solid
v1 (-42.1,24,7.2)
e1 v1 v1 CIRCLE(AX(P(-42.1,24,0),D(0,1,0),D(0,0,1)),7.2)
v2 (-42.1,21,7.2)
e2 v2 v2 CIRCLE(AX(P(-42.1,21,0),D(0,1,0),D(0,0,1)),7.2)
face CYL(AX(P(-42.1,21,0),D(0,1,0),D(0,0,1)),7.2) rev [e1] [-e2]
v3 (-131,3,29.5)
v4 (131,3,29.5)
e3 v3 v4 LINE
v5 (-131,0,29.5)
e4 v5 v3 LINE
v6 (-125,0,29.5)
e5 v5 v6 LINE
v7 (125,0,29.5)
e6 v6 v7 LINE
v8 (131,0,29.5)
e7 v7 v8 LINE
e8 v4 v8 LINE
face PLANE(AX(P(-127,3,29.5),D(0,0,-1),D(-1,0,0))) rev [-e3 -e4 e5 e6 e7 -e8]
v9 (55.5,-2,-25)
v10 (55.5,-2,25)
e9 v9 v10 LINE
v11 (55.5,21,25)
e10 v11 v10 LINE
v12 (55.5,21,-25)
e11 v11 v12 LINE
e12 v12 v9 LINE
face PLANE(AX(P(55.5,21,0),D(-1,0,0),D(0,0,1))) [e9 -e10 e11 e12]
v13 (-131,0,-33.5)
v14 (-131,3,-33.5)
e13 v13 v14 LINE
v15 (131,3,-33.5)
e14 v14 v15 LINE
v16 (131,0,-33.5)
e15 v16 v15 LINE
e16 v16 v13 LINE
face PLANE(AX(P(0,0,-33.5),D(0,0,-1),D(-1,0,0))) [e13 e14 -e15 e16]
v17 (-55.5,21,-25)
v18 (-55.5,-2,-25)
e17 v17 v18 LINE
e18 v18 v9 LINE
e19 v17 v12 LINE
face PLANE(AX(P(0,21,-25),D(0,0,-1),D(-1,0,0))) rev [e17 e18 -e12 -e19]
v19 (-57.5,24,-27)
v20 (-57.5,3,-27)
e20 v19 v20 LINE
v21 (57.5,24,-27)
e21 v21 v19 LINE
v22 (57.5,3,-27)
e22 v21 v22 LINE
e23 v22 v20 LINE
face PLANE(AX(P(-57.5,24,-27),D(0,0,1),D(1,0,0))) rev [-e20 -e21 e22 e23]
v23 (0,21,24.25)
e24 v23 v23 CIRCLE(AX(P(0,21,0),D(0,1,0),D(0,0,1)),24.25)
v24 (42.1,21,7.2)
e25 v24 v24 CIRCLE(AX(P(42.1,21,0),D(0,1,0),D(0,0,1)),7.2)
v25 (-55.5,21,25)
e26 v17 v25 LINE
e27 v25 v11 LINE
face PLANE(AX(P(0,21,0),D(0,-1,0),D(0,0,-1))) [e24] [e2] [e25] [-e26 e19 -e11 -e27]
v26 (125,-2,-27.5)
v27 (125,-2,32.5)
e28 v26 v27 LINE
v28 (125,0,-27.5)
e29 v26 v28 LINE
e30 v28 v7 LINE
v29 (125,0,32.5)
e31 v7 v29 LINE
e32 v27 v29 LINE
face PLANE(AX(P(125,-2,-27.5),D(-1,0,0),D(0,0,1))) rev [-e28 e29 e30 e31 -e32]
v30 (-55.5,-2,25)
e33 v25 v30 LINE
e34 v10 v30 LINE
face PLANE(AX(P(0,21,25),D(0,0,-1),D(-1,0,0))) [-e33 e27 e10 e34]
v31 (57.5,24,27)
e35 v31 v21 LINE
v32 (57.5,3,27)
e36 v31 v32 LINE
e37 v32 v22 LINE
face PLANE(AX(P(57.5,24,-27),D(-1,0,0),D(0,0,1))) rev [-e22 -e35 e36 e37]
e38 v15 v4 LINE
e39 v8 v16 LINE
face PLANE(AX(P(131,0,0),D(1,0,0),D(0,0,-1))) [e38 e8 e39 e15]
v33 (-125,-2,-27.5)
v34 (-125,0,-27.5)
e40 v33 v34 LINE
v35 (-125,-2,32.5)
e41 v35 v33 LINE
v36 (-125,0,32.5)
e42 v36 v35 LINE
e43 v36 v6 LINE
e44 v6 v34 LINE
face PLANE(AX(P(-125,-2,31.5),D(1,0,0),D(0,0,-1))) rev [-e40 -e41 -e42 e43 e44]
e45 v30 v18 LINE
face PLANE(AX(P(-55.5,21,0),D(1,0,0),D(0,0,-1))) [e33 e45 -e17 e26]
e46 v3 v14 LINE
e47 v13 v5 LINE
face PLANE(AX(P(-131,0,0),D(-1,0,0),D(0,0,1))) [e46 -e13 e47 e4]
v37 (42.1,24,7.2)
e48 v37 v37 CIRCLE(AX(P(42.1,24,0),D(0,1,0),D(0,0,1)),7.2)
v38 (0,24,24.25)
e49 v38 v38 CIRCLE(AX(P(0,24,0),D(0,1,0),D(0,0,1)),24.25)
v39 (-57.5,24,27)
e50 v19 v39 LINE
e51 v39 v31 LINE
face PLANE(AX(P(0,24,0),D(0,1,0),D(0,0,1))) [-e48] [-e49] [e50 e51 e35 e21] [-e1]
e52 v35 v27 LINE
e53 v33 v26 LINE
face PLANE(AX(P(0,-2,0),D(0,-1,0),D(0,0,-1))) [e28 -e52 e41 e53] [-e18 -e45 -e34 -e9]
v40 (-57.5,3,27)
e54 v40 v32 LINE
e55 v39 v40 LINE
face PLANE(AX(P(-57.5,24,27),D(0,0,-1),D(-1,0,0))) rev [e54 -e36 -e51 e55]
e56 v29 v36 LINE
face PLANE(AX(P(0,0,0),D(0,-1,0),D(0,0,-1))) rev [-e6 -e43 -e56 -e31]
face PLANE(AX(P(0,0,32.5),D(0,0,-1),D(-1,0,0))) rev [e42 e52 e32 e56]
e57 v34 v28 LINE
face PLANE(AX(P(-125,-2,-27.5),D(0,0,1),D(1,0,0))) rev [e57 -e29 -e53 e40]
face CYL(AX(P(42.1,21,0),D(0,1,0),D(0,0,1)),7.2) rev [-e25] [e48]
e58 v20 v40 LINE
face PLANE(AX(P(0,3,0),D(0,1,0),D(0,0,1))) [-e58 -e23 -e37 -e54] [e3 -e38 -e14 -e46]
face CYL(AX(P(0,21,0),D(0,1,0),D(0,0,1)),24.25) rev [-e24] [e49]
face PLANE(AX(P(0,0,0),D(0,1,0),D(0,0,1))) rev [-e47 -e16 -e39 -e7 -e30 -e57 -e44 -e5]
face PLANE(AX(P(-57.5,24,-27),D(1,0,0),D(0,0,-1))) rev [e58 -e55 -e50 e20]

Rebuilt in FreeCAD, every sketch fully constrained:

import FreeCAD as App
import Part
import Sketcher
from FreeCAD import Vector
Q = App.Units.Quantity

doc = App.newDocument("Part")
body = doc.addObject("PartDesign::Body", "Body")

sketch1 = doc.addObject("Sketcher::SketchObject", "Sketch")
body.addObject(sketch1)
sketch1.AttachmentSupport = (doc.XZ_Plane, [""])
sketch1.MapMode = "FlatFace"
sketch1.addGeometry(Part.LineSegment(Vector(-127, -30, 0), Vector(-127, 30, 0)), False)
sketch1.addGeometry(Part.LineSegment(Vector(-127, 30, 0), Vector(127, 30, 0)), False)
sketch1.addGeometry(Part.LineSegment(Vector(127, 30, 0), Vector(127, -30, 0)), False)
sketch1.addGeometry(Part.LineSegment(Vector(127, -30, 0), Vector(-127, -30, 0)), False)
sketch1.addConstraint(Sketcher.Constraint("Coincident", 0, 2, 1, 1))
sketch1.addConstraint(Sketcher.Constraint("Coincident", 1, 2, 2, 1))
sketch1.addConstraint(Sketcher.Constraint("Coincident", 2, 2, 3, 1))
sketch1.addConstraint(Sketcher.Constraint("Coincident", 3, 2, 0, 1))
sketch1.addConstraint(Sketcher.Constraint("Vertical", 0))
sketch1.addConstraint(Sketcher.Constraint("Horizontal", 1))
sketch1.addConstraint(Sketcher.Constraint("Vertical", 2))
sketch1.addConstraint(Sketcher.Constraint("Horizontal", 3))
sketch1.addConstraint(Sketcher.Constraint("Symmetric", 0, 2, 2, 2, -1, 1))
sketch1.addConstraint(Sketcher.Constraint("DistanceX", 1, 1, 1, 2, Q("254 mm")))
sketch1.addConstraint(Sketcher.Constraint("DistanceY", 0, 1, 0, 2, Q("59 mm")))
pad1 = doc.addObject("PartDesign::Pad", "Pad")
body.addObject(pad1)
pad1.Profile = sketch1
pad1.Length = 3
pad1.Reversed = True

sketch2 = doc.addObject("Sketcher::SketchObject", "Sketch001")
body.addObject(sketch2)
sketch2.AttachmentSupport = (doc.XZ_Plane, [""])
sketch2.MapMode = "FlatFace"
sketch2.AttachmentOffset = App.Placement(Vector(0, 0, -3), App.Rotation())
sketch2.addGeometry(Part.LineSegment(Vector(-58, -27, 0), Vector(-58, 27, 0)), False)
sketch2.addGeometry(Part.LineSegment(Vector(-58, 27, 0), Vector(58, 27, 0)), False)
sketch2.addGeometry(Part.LineSegment(Vector(58, 27, 0), Vector(58, -27, 0)), False)
sketch2.addGeometry(Part.LineSegment(Vector(58, -27, 0), Vector(-58, -27, 0)), False)
sketch2.addConstraint(Sketcher.Constraint("Coincident", 0, 2, 1, 1))
sketch2.addConstraint(Sketcher.Constraint("Coincident", 1, 2, 2, 1))
sketch2.addConstraint(Sketcher.Constraint("Coincident", 2, 2, 3, 1))
sketch2.addConstraint(Sketcher.Constraint("Coincident", 3, 2, 0, 1))
sketch2.addConstraint(Sketcher.Constraint("Vertical", 0))
sketch2.addConstraint(Sketcher.Constraint("Horizontal", 1))
sketch2.addConstraint(Sketcher.Constraint("Vertical", 2))
sketch2.addConstraint(Sketcher.Constraint("Horizontal", 3))
sketch2.addConstraint(Sketcher.Constraint("Symmetric", 0, 2, 2, 2, -1, 1))
sketch2.addConstraint(Sketcher.Constraint("DistanceX", 1, 1, 1, 2, Q("115 mm")))
sketch2.addConstraint(Sketcher.Constraint("DistanceY", 0, 1, 0, 2, Q("54 mm")))
pad2 = doc.addObject("PartDesign::Pad", "Pad001")
body.addObject(pad2)
pad2.Profile = sketch2
pad2.Length = 21
pad2.Reversed = True

sketch3 = doc.addObject("Sketcher::SketchObject", "Sketch002")
body.addObject(sketch3)
sketch3.AttachmentSupport = (doc.XZ_Plane, [""])
sketch3.MapMode = "FlatFace"
sketch3.addGeometry(Part.LineSegment(Vector(-56, 25, 0), Vector(-56, -25, 0)), False)
sketch3.addGeometry(Part.LineSegment(Vector(-56, -25, 0), Vector(56, -25, 0)), False)
sketch3.addGeometry(Part.LineSegment(Vector(56, -25, 0), Vector(56, 25, 0)), False)
sketch3.addGeometry(Part.LineSegment(Vector(56, 25, 0), Vector(-56, 25, 0)), False)
sketch3.addConstraint(Sketcher.Constraint("Coincident", 0, 2, 1, 1))
sketch3.addConstraint(Sketcher.Constraint("Coincident", 1, 2, 2, 1))
sketch3.addConstraint(Sketcher.Constraint("Coincident", 2, 2, 3, 1))
sketch3.addConstraint(Sketcher.Constraint("Coincident", 3, 2, 0, 1))
sketch3.addConstraint(Sketcher.Constraint("Vertical", 0))
sketch3.addConstraint(Sketcher.Constraint("Horizontal", 1))
sketch3.addConstraint(Sketcher.Constraint("Vertical", 2))
sketch3.addConstraint(Sketcher.Constraint("Horizontal", 3))
sketch3.addConstraint(Sketcher.Constraint("Symmetric", 0, 2, 2, 2, -1, 1))
sketch3.addConstraint(Sketcher.Constraint("DistanceX", 1, 1, 1, 2, Q("111 mm")))
sketch3.addConstraint(Sketcher.Constraint("DistanceY", 0, 2, 0, 1, Q("50 mm")))
pocket1 = doc.addObject("PartDesign::Pocket", "Pocket")
body.addObject(pocket1)
pocket1.Profile = sketch3
pocket1.Length = 21

sketch4 = doc.addObject("Sketcher::SketchObject", "Sketch003")
body.addObject(sketch4)
sketch4.AttachmentSupport = (doc.XZ_Plane, [""])
sketch4.MapMode = "FlatFace"
sketch4.AttachmentOffset = App.Placement(Vector(0, 0, -24), App.Rotation())
sketch4.addGeometry(Part.Circle(Vector(-42, 0, 0), Vector(0, 0, 1), 7), False)
sketch4.addGeometry(Part.Circle(Vector(0, 0, 0), Vector(0, 0, 1), 24), False)
sketch4.addGeometry(Part.Circle(Vector(42, 0, 0), Vector(0, 0, 1), 7), False)
sketch4.addConstraint(Sketcher.Constraint("Coincident", 1, 3, -1, 1))
sketch4.addConstraint(Sketcher.Constraint("Equal", 0, 2))
sketch4.addConstraint(Sketcher.Constraint("Symmetric", 0, 3, 2, 3, -1, 1))
sketch4.addConstraint(Sketcher.Constraint("PointOnObject", 0, 3, -1))
sketch4.addConstraint(Sketcher.Constraint("Diameter", 0, Q("14.4 mm")))
sketch4.addConstraint(Sketcher.Constraint("Diameter", 1, Q("48.5 mm")))
sketch4.addConstraint(Sketcher.Constraint("DistanceX", 0, 3, -1, 1, Q("42.1 mm")))
pocket2 = doc.addObject("PartDesign::Pocket", "Pocket001")
body.addObject(pocket2)
pocket2.Profile = sketch4
pocket2.Length = 3
pocket2.Reversed = True

sketch5 = doc.addObject("Sketcher::SketchObject", "Sketch004")
body.addObject(sketch5)
sketch5.AttachmentSupport = (doc.XZ_Plane, [""])
sketch5.MapMode = "FlatFace"
sketch5.addGeometry(Part.LineSegment(Vector(-125, 32, 0), Vector(-125, -28, 0)), False)
sketch5.addGeometry(Part.LineSegment(Vector(-125, -28, 0), Vector(125, -28, 0)), False)
sketch5.addGeometry(Part.LineSegment(Vector(125, -28, 0), Vector(125, 32, 0)), False)
sketch5.addGeometry(Part.LineSegment(Vector(125, 32, 0), Vector(-125, 32, 0)), False)
sketch5.addGeometry(Part.LineSegment(Vector(56, -25, 0), Vector(-56, -25, 0)), False)
sketch5.addGeometry(Part.LineSegment(Vector(-56, -25, 0), Vector(-56, 25, 0)), False)
sketch5.addGeometry(Part.LineSegment(Vector(-56, 25, 0), Vector(56, 25, 0)), False)
sketch5.addGeometry(Part.LineSegment(Vector(56, 25, 0), Vector(56, -25, 0)), False)
sketch5.addConstraint(Sketcher.Constraint("Coincident", 0, 2, 1, 1))
sketch5.addConstraint(Sketcher.Constraint("Coincident", 1, 2, 2, 1))
sketch5.addConstraint(Sketcher.Constraint("Coincident", 2, 2, 3, 1))
sketch5.addConstraint(Sketcher.Constraint("Coincident", 3, 2, 0, 1))
sketch5.addConstraint(Sketcher.Constraint("Coincident", 4, 2, 5, 1))
sketch5.addConstraint(Sketcher.Constraint("Coincident", 5, 2, 6, 1))
sketch5.addConstraint(Sketcher.Constraint("Coincident", 6, 2, 7, 1))
sketch5.addConstraint(Sketcher.Constraint("Coincident", 7, 2, 4, 1))
sketch5.addConstraint(Sketcher.Constraint("Vertical", 0))
sketch5.addConstraint(Sketcher.Constraint("Horizontal", 1))
sketch5.addConstraint(Sketcher.Constraint("Vertical", 2))
sketch5.addConstraint(Sketcher.Constraint("Horizontal", 3))
sketch5.addConstraint(Sketcher.Constraint("Horizontal", 4))
sketch5.addConstraint(Sketcher.Constraint("Vertical", 5))
sketch5.addConstraint(Sketcher.Constraint("Horizontal", 6))
sketch5.addConstraint(Sketcher.Constraint("Vertical", 7))
sketch5.addConstraint(Sketcher.Constraint("Symmetric", 4, 2, 6, 2, -1, 1))
sketch5.addConstraint(Sketcher.Constraint("DistanceX", 1, 1, 1, 2, Q("250 mm")))
sketch5.addConstraint(Sketcher.Constraint("DistanceX", 4, 2, 4, 1, Q("111 mm")))
sketch5.addConstraint(Sketcher.Constraint("DistanceY", 0, 2, 0, 1, Q("59 mm")))
sketch5.addConstraint(Sketcher.Constraint("DistanceY", 5, 1, 5, 2, Q("50 mm")))
sketch5.addConstraint(Sketcher.Constraint("DistanceX", 0, 2, -1, 1, Q("125 mm")))
sketch5.addConstraint(Sketcher.Constraint("DistanceY", 0, 2, -1, 1, Q("27.5 mm")))
pad3 = doc.addObject("PartDesign::Pad", "Pad002")
body.addObject(pad3)
pad3.Profile = sketch5
pad3.Length = 2

sketch6 = doc.addObject("Sketcher::SketchObject", "Sketch005")
body.addObject(sketch6)
sketch6.AttachmentSupport = (doc.YZ_Plane, [""])
sketch6.MapMode = "FlatFace"
sketch6.AttachmentOffset = App.Placement(Vector(0, 0, -127), App.Rotation())
sketch6.addGeometry(Part.LineSegment(Vector(3, -29.5, 0), Vector(0, -29.5, 0)), False)
sketch6.addGeometry(Part.LineSegment(Vector(0, -29.5, 0), Vector(0, 29.5, 0)), False)
sketch6.addGeometry(Part.LineSegment(Vector(0, 29.5, 0), Vector(3, 29.5, 0)), False)
sketch6.addGeometry(Part.LineSegment(Vector(3, 29.5, 0), Vector(3, -29.5, 0)), False)
sketch6.addConstraint(Sketcher.Constraint("Coincident", 0, 2, 1, 1))
sketch6.addConstraint(Sketcher.Constraint("Coincident", 1, 2, 2, 1))
sketch6.addConstraint(Sketcher.Constraint("Coincident", 2, 2, 3, 1))
sketch6.addConstraint(Sketcher.Constraint("Coincident", 3, 2, 0, 1))
sketch6.addConstraint(Sketcher.Constraint("Horizontal", 0))
sketch6.addConstraint(Sketcher.Constraint("Vertical", 1))
sketch6.addConstraint(Sketcher.Constraint("Horizontal", 2))
sketch6.addConstraint(Sketcher.Constraint("Vertical", 3))
sketch6.addConstraint(Sketcher.Constraint("Symmetric", 0, 2, 1, 2, -1, 1))
sketch6.addConstraint(Sketcher.Constraint("DistanceX", 0, 2, 0, 1, Q("3 mm")))
sketch6.addConstraint(Sketcher.Constraint("DistanceY", 1, 1, 1, 2, Q("59 mm")))
pad4 = doc.addObject("PartDesign::Pad", "Pad003")
body.addObject(pad4)
pad4.Profile = sketch6
pad4.Length = 4
pad4.Reversed = True

sketch7 = doc.addObject("Sketcher::SketchObject", "Sketch006")
body.addObject(sketch7)
sketch7.AttachmentSupport = (doc.XY_Plane, [""])
sketch7.MapMode = "FlatFace"
sketch7.AttachmentOffset = App.Placement(Vector(0, 0, -29.5), App.Rotation())
sketch7.addGeometry(Part.LineSegment(Vector(127, 3, 0), Vector(127, 0, 0)), False)
sketch7.addGeometry(Part.LineSegment(Vector(127, 0, 0), Vector(-131, 0, 0)), False)
sketch7.addGeometry(Part.LineSegment(Vector(-131, 0, 0), Vector(-131, 3, 0)), False)
sketch7.addGeometry(Part.LineSegment(Vector(-131, 3, 0), Vector(127, 3, 0)), False)
sketch7.addConstraint(Sketcher.Constraint("Coincident", 0, 2, 1, 1))
sketch7.addConstraint(Sketcher.Constraint("Coincident", 1, 2, 2, 1))
sketch7.addConstraint(Sketcher.Constraint("Coincident", 2, 2, 3, 1))
sketch7.addConstraint(Sketcher.Constraint("Coincident", 3, 2, 0, 1))
sketch7.addConstraint(Sketcher.Constraint("Vertical", 0))
sketch7.addConstraint(Sketcher.Constraint("Horizontal", 1))
sketch7.addConstraint(Sketcher.Constraint("Vertical", 2))
sketch7.addConstraint(Sketcher.Constraint("Horizontal", 3))
sketch7.addConstraint(Sketcher.Constraint("PointOnObject", 0, 2, -1))
sketch7.addConstraint(Sketcher.Constraint("DistanceX", 1, 2, 1, 1, Q("258 mm")))
sketch7.addConstraint(Sketcher.Constraint("DistanceY", 0, 2, 0, 1, Q("3 mm")))
sketch7.addConstraint(Sketcher.Constraint("DistanceX", -1, 1, 0, 2, Q("127 mm")))
pad5 = doc.addObject("PartDesign::Pad", "Pad004")
body.addObject(pad5)
pad5.Profile = sketch7
pad5.Length = 4
pad5.Reversed = True

sketch8 = doc.addObject("Sketcher::SketchObject", "Sketch007")
body.addObject(sketch8)
sketch8.AttachmentSupport = (doc.YZ_Plane, [""])
sketch8.MapMode = "FlatFace"
sketch8.AttachmentOffset = App.Placement(Vector(0, 0, 127), App.Rotation())
sketch8.addGeometry(Part.LineSegment(Vector(3, 29.5, 0), Vector(0, 29.5, 0)), False)
sketch8.addGeometry(Part.LineSegment(Vector(0, 29.5, 0), Vector(0, -33.5, 0)), False)
sketch8.addGeometry(Part.LineSegment(Vector(0, -33.5, 0), Vector(3, -33.5, 0)), False)
sketch8.addGeometry(Part.LineSegment(Vector(3, -33.5, 0), Vector(3, 29.5, 0)), False)
sketch8.addConstraint(Sketcher.Constraint("Coincident", 0, 2, 1, 1))
sketch8.addConstraint(Sketcher.Constraint("Coincident", 1, 2, 2, 1))
sketch8.addConstraint(Sketcher.Constraint("Coincident", 2, 2, 3, 1))
sketch8.addConstraint(Sketcher.Constraint("Coincident", 3, 2, 0, 1))
sketch8.addConstraint(Sketcher.Constraint("Horizontal", 0))
sketch8.addConstraint(Sketcher.Constraint("Vertical", 1))
sketch8.addConstraint(Sketcher.Constraint("Horizontal", 2))
sketch8.addConstraint(Sketcher.Constraint("Vertical", 3))
sketch8.addConstraint(Sketcher.Constraint("PointOnObject", 0, 2, -2))
sketch8.addConstraint(Sketcher.Constraint("DistanceX", 0, 2, 0, 1, Q("3 mm")))
sketch8.addConstraint(Sketcher.Constraint("DistanceY", 1, 2, 1, 1, Q("63 mm")))
sketch8.addConstraint(Sketcher.Constraint("DistanceY", -1, 1, 0, 2, Q("29.5 mm")))
pad6 = doc.addObject("PartDesign::Pad", "Pad005")
body.addObject(pad6)
pad6.Profile = sketch8
pad6.Length = 4

sketch9 = doc.addObject("Sketcher::SketchObject", "Sketch008")
body.addObject(sketch9)
sketch9.AttachmentSupport = (doc.XY_Plane, [""])
sketch9.MapMode = "FlatFace"
sketch9.AttachmentOffset = App.Placement(Vector(0, 0, 31.5), App.Rotation())
sketch9.addGeometry(Part.LineSegment(Vector(-125, 0, 0), Vector(-125, -2, 0)), False)
sketch9.addGeometry(Part.LineSegment(Vector(-125, -2, 0), Vector(125, -2, 0)), False)
sketch9.addGeometry(Part.LineSegment(Vector(125, -2, 0), Vector(125, 0, 0)), False)
sketch9.addGeometry(Part.LineSegment(Vector(125, 0, 0), Vector(-125, 0, 0)), False)
sketch9.addConstraint(Sketcher.Constraint("Coincident", 0, 2, 1, 1))
sketch9.addConstraint(Sketcher.Constraint("Coincident", 1, 2, 2, 1))
sketch9.addConstraint(Sketcher.Constraint("Coincident", 2, 2, 3, 1))
sketch9.addConstraint(Sketcher.Constraint("Coincident", 3, 2, 0, 1))
sketch9.addConstraint(Sketcher.Constraint("Vertical", 0))
sketch9.addConstraint(Sketcher.Constraint("Horizontal", 1))
sketch9.addConstraint(Sketcher.Constraint("Vertical", 2))
sketch9.addConstraint(Sketcher.Constraint("Horizontal", 3))
sketch9.addConstraint(Sketcher.Constraint("Symmetric", 2, 2, 3, 2, -1, 1))
sketch9.addConstraint(Sketcher.Constraint("DistanceX", 1, 1, 1, 2, Q("250 mm")))
sketch9.addConstraint(Sketcher.Constraint("DistanceY", 0, 2, 0, 1, Q("2 mm")))
pad7 = doc.addObject("PartDesign::Pad", "Pad006")
body.addObject(pad7)
pad7.Profile = sketch9
pad7.Length = 1

doc.recompute()
